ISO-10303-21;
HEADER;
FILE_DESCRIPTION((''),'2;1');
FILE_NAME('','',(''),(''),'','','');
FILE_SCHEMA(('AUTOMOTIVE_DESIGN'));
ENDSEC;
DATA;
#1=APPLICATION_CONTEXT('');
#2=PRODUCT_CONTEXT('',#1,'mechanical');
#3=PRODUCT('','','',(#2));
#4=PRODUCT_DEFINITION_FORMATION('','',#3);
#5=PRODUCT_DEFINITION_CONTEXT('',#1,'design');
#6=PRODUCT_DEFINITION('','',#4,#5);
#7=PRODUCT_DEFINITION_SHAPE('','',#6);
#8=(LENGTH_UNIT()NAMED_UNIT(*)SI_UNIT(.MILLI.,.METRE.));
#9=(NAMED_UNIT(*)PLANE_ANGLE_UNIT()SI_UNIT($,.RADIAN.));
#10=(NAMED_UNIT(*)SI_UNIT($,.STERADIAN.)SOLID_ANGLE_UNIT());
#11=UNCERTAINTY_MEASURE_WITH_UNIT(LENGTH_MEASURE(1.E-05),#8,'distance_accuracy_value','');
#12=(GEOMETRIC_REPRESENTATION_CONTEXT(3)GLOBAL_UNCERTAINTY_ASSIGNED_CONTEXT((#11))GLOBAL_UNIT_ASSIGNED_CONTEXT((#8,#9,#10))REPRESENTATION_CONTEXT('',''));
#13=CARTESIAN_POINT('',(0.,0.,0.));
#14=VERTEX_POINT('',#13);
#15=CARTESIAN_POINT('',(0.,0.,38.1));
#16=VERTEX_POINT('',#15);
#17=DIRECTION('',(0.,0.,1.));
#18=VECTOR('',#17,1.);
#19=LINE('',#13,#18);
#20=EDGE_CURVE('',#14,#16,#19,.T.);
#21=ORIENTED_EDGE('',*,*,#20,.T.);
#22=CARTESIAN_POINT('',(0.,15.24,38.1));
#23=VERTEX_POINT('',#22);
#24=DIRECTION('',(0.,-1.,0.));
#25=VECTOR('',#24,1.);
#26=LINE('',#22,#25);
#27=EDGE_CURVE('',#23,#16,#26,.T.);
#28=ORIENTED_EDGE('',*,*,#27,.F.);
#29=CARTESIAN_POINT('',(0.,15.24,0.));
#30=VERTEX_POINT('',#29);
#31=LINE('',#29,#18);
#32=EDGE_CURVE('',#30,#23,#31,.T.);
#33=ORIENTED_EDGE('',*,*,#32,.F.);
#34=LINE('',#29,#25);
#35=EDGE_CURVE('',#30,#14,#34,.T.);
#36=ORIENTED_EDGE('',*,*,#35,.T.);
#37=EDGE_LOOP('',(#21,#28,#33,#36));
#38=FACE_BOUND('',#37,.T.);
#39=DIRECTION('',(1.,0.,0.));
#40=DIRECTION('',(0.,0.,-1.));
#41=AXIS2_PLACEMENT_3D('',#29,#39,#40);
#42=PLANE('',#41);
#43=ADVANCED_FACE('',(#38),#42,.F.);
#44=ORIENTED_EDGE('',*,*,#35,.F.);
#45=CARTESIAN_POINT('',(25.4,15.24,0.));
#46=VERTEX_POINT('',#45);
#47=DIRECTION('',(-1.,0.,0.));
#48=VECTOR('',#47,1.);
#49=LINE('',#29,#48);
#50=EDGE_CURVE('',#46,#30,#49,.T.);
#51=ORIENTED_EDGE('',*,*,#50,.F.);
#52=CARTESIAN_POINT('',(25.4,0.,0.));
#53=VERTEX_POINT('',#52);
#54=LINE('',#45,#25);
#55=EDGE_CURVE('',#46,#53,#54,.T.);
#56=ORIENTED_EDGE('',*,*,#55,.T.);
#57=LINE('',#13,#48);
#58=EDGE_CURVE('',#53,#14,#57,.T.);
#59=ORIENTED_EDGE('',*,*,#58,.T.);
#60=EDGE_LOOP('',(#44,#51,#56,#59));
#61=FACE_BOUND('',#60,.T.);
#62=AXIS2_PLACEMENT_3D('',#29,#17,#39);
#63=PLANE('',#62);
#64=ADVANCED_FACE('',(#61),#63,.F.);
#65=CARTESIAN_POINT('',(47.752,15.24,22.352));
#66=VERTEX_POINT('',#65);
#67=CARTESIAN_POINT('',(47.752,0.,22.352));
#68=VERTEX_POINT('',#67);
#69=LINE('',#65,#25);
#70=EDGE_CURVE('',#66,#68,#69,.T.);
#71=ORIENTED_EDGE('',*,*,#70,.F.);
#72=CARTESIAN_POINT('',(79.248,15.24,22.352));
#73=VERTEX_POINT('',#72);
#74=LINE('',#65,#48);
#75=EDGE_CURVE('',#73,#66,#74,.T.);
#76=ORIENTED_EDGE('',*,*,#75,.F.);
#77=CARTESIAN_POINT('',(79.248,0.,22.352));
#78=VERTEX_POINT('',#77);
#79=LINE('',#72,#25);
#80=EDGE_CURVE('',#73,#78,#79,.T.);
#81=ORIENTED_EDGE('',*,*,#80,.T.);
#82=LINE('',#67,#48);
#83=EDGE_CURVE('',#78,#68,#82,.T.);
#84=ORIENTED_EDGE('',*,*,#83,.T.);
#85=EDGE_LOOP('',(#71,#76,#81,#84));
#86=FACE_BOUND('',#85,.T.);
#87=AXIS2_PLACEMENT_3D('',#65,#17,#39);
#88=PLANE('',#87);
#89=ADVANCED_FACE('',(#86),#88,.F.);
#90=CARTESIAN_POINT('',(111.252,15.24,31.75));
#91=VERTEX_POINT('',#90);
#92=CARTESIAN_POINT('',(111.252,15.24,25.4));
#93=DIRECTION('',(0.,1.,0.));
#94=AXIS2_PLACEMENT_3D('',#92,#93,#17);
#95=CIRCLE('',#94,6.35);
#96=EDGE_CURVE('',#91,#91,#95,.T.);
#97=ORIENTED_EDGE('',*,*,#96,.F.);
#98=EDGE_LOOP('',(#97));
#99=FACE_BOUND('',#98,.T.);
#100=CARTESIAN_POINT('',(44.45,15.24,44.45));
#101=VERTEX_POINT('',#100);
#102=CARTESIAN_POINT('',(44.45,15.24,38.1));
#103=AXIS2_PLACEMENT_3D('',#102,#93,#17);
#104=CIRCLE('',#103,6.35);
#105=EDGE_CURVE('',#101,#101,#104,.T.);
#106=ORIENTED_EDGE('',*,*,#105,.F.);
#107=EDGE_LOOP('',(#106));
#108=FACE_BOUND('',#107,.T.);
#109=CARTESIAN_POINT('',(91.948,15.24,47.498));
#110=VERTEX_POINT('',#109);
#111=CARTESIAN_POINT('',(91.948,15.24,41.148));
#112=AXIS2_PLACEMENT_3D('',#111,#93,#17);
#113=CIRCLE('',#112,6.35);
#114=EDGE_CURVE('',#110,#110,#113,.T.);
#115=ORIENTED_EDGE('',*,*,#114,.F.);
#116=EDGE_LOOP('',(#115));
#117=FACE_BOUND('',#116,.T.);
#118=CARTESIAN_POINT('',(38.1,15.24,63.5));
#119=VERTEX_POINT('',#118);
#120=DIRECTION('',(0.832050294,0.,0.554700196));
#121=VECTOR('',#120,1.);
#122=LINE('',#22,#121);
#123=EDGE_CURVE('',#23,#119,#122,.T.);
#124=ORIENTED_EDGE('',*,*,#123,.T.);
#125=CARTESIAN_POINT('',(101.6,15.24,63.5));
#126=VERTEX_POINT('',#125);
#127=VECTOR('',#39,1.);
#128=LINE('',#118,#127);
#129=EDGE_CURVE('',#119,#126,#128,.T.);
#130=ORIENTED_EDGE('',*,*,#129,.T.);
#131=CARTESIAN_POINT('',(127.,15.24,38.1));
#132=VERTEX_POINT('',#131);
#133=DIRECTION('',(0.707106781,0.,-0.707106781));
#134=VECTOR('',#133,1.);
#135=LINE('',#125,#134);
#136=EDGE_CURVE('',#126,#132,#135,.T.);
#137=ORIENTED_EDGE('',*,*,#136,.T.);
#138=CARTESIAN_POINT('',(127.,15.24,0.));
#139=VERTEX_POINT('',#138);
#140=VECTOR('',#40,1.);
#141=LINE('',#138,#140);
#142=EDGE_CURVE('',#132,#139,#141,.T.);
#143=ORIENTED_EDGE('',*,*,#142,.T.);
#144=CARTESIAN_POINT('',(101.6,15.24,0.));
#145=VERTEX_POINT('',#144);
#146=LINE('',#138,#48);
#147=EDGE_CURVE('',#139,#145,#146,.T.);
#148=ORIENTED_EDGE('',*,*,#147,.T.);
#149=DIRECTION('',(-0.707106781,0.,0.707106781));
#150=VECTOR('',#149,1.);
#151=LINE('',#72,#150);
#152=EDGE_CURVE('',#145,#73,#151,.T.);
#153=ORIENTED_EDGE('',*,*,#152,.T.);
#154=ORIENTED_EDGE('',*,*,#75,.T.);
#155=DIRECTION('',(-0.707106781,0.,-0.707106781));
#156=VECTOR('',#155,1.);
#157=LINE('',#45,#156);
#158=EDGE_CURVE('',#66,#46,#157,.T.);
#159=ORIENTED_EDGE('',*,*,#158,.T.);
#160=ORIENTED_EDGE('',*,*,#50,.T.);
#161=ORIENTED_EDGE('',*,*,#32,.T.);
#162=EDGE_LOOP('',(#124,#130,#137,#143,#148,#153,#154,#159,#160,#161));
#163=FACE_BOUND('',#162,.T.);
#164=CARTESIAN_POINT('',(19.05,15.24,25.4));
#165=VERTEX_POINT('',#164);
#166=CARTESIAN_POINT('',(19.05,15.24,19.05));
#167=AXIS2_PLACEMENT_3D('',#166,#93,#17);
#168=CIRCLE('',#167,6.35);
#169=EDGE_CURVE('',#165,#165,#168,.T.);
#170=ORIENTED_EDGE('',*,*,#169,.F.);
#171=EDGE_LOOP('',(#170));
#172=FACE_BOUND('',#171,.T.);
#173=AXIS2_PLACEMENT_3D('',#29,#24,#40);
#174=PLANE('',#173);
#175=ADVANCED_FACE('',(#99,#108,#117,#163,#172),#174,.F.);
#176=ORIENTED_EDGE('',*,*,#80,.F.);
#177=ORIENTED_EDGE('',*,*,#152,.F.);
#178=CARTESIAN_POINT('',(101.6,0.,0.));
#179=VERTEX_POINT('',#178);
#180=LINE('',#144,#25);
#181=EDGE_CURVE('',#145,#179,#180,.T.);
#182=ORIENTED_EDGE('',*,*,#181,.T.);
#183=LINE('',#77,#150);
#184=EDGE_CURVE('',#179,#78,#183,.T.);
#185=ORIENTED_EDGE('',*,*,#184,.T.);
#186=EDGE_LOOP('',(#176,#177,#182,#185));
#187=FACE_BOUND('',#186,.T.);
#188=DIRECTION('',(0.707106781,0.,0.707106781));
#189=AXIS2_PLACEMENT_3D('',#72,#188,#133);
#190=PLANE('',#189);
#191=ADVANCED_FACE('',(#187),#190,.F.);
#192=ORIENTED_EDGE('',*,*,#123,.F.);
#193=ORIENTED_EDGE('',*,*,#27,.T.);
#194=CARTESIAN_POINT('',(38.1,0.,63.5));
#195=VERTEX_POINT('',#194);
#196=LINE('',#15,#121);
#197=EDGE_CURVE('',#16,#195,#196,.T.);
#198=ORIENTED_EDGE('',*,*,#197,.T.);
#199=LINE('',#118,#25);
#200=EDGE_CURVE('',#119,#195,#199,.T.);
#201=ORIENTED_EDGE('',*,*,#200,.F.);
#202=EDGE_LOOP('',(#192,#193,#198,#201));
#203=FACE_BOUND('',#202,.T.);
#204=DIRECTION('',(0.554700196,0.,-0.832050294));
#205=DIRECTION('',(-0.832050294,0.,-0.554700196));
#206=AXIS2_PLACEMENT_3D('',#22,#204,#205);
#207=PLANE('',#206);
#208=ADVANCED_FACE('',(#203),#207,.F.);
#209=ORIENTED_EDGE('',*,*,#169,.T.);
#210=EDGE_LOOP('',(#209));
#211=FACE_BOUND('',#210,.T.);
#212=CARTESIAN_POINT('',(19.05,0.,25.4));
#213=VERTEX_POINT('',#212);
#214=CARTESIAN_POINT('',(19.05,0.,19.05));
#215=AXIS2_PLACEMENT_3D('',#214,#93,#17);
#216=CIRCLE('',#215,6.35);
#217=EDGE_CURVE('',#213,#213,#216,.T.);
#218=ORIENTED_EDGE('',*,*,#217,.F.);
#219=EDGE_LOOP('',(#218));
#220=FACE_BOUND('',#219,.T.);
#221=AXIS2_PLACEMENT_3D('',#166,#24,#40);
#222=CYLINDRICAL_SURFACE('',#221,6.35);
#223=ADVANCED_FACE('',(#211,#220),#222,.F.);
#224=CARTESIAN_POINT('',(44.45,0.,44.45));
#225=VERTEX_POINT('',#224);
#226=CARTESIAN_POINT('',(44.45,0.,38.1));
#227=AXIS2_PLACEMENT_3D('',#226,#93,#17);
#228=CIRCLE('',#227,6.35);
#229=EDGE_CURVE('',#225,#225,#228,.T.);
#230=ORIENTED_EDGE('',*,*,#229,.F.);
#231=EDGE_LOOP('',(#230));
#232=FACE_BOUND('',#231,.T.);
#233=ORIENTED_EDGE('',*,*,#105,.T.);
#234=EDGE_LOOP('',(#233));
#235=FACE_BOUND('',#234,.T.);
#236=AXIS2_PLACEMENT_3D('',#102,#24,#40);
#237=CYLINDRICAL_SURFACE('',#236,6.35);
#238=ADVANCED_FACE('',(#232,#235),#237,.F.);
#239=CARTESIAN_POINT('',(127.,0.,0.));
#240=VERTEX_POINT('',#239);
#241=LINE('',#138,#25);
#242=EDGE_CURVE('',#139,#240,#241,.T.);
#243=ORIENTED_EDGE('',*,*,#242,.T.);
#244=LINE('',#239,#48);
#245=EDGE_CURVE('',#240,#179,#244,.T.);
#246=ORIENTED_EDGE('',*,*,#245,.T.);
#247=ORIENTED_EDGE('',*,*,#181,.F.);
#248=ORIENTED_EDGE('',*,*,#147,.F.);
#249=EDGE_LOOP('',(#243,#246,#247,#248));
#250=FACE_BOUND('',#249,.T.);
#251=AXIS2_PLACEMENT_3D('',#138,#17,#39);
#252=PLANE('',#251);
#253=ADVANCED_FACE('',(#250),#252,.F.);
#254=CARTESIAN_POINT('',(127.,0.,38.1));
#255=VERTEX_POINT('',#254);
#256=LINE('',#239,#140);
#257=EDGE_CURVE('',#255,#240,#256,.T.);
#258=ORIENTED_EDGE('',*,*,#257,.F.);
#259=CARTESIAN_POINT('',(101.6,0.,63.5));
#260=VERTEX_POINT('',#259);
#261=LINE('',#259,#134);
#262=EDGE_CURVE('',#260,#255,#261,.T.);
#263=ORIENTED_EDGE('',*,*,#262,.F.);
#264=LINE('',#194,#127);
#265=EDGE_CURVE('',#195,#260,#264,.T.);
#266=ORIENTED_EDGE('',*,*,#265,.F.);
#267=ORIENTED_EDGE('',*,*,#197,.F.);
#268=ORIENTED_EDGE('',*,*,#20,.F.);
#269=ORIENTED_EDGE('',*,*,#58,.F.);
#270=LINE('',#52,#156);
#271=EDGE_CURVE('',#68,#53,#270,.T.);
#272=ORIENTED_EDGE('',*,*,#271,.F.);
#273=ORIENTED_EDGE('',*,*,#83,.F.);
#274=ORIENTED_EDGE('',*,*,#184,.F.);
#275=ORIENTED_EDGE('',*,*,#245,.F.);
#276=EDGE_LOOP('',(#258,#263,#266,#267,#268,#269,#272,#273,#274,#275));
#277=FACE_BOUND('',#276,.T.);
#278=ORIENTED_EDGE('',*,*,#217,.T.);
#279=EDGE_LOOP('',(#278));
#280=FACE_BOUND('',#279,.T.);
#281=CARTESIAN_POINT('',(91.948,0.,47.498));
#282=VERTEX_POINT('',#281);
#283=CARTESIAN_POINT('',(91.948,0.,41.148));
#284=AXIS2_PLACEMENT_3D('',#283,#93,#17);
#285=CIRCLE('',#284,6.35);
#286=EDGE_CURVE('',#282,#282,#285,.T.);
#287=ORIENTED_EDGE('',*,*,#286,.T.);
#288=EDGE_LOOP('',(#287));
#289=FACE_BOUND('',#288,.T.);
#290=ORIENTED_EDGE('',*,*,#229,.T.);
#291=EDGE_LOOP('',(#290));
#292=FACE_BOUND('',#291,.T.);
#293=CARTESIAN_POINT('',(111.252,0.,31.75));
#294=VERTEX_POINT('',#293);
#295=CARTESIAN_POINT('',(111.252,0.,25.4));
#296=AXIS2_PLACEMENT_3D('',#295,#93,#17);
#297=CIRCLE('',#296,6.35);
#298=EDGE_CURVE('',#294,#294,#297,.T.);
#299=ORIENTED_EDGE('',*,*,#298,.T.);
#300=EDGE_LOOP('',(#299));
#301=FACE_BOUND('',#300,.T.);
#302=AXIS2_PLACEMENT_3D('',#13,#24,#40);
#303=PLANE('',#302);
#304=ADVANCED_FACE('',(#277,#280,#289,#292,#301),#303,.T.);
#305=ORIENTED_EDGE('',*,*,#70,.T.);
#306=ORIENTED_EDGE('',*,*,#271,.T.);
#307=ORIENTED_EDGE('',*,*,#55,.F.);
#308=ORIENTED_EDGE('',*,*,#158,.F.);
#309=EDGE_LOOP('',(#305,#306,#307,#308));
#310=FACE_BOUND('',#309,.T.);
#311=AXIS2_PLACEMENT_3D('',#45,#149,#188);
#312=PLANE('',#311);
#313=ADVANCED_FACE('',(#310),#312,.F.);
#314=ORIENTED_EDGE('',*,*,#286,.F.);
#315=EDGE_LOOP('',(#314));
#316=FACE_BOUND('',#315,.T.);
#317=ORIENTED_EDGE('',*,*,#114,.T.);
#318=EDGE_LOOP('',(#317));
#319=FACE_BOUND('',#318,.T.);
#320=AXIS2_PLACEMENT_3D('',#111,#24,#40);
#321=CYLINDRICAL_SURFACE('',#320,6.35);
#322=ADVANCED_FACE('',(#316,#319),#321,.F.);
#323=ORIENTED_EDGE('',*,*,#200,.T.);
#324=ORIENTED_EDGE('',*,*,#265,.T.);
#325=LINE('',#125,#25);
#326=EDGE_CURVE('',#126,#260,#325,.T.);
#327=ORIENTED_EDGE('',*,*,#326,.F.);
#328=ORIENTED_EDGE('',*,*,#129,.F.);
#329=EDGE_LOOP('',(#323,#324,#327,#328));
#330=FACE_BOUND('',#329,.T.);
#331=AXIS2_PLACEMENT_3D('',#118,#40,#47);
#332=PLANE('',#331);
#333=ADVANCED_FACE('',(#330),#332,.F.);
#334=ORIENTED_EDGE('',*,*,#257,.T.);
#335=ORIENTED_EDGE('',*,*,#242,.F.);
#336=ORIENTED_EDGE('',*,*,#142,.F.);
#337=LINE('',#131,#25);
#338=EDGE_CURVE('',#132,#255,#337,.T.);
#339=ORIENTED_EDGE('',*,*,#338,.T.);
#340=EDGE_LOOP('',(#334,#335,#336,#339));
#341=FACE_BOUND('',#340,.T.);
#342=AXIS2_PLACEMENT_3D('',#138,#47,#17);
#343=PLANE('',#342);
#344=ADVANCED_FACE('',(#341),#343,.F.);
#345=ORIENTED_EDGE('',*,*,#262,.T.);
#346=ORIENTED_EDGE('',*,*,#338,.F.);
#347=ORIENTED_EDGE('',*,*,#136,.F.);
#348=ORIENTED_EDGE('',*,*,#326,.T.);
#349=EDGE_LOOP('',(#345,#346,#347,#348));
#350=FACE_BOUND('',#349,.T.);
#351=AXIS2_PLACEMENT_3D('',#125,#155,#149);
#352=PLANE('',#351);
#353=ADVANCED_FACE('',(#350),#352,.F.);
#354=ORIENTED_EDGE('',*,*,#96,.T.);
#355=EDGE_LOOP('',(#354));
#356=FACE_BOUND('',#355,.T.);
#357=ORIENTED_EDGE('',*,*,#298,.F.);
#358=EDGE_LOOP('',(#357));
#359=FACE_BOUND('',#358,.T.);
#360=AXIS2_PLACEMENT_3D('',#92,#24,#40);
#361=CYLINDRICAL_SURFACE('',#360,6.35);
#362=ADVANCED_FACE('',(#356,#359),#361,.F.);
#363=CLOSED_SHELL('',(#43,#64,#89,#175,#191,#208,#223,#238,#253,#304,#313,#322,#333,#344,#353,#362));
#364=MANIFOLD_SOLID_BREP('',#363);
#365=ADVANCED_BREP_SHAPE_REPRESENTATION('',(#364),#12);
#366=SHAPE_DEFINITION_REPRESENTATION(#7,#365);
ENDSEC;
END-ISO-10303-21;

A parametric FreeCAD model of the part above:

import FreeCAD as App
import Part
import Sketcher
from FreeCAD import Vector
Q = App.Units.Quantity

doc = App.newDocument("Part")
body = doc.addObject("PartDesign::Body", "Body")

sketch1 = body.newObject("Sketcher::SketchObject", "Sketch")
sketch1.AttachmentSupport = (doc.getObject("XZ_Plane"), [""])
sketch1.MapMode = "FlatFace"
sketch1.addGeometry([
    Part.LineSegment(Vector(101.6, 0, 0), Vector(79.248, 22.352, 0)),
    Part.LineSegment(Vector(79.248, 22.352, 0), Vector(47.752, 22.352, 0)),
    Part.LineSegment(Vector(47.752, 22.352, 0), Vector(25.4, 0, 0)),
    Part.LineSegment(Vector(25.4, 0, 0), Vector(0, 0, 0)),
    Part.LineSegment(Vector(0, 0, 0), Vector(0, 38.1, 0)),
    Part.LineSegment(Vector(0, 38.1, 0), Vector(38.1, 63.5, 0)),
    Part.LineSegment(Vector(38.1, 63.5, 0), Vector(101.6, 63.5, 0)),
    Part.LineSegment(Vector(101.6, 63.5, 0), Vector(127, 38.1, 0)),
    Part.LineSegment(Vector(127, 38.1, 0), Vector(127, 0, 0)),
    Part.LineSegment(Vector(127, 0, 0), Vector(101.6, 0, 0)),
    Part.Circle(Vector(91.948, 41.148, 0), Vector(0, 0, 1), 6.35),
    Part.Circle(Vector(44.45, 38.1, 0), Vector(0, 0, 1), 6.35),
    Part.Circle(Vector(111.252, 25.4, 0), Vector(0, 0, 1), 6.35),
    Part.Circle(Vector(19.05, 19.05, 0), Vector(0, 0, 1), 6.35),
], False)
sketch1.addConstraint([
    Sketcher.Constraint("Coincident", 0, 2, 1, 1),
    Sketcher.Constraint("Coincident", 1, 2, 2, 1),
    Sketcher.Constraint("Coincident", 2, 2, 3, 1),
    Sketcher.Constraint("Coincident", 3, 2, 4, 1),
    Sketcher.Constraint("Coincident", 4, 2, 5, 1),
    Sketcher.Constraint("Coincident", 5, 2, 6, 1),
    Sketcher.Constraint("Coincident", 6, 2, 7, 1),
    Sketcher.Constraint("Coincident", 7, 2, 8, 1),
    Sketcher.Constraint("Coincident", 8, 2, 9, 1),
    Sketcher.Constraint("Coincident", 9, 2, 0, 1),
    Sketcher.Constraint("Horizontal", 1),
    Sketcher.Constraint("Horizontal", 3),
    Sketcher.Constraint("Vertical", 4),
    Sketcher.Constraint("Horizontal", 6),
    Sketcher.Constraint("Vertical", 8),
    Sketcher.Constraint("Horizontal", 9),
    Sketcher.Constraint("Coincident", 3, 2, -1, 1),
    Sketcher.Constraint("Equal", 10, 11),
    Sketcher.Constraint("Equal", 11, 12),
    Sketcher.Constraint("Equal", 12, 13),
    Sketcher.Constraint("PointOnObject", 8, 2, -1),
    Sketcher.Constraint("Perpendicular", 0, 2),
    Sketcher.Constraint("Perpendicular", 2, 7),
    Sketcher.Constraint("Horizontal", 11, 3, 4, 2),
    Sketcher.Constraint("Horizontal", 4, 2, 7, 2),
    Sketcher.Constraint("Vertical", 6, 2, 9, 2),
    Sketcher.Constraint("Equal", 3, 9),
    Sketcher.Constraint("Equal", 0, 2),
    Sketcher.Constraint("Diameter", 10, Q("0.5 in")),
    Sketcher.Constraint("DistanceX", 3, 2, 3, 1, Q("1 in")),
    Sketcher.Constraint("DistanceX", 6, 1, 6, 2, Q("2.5 in")),
    Sketcher.Constraint("DistanceY", 4, 1, 4, 2, Q("1.5 in")),
    Sketcher.Constraint("DistanceY", -1, 1, 12, 3, Q("1 in")),
    Sketcher.Constraint("DistanceX", -1, 1, 6, 2, Q("4 in")),
    Sketcher.Constraint("DistanceX", 13, 3, 11, 3, Q("1 in")),
    Sketcher.Constraint("DistanceX", 1, 2, 1, 1, Q("1.24 in")),
    Sketcher.Constraint("DistanceX", 0, 2, 10, 3, Q("0.5 in")),
    Sketcher.Constraint("DistanceX", 1, 2, 12, 3, Q("2.5 in")),
    Sketcher.Constraint("DistanceY", -1, 1, 10, 3, Q("1.62 in")),
    Sketcher.Constraint("DistanceX", -1, 1, 11, 3, Q("1.75 in")),
    Sketcher.Constraint("DistanceY", -1, 1, 13, 3, Q("0.75 in")),
])
pad1 = body.newObject("PartDesign::Pad", "Pad")
pad1.Profile = sketch1
pad1.Length = Q("0.6 in")
pad1.Reversed = True

doc.recompute()
